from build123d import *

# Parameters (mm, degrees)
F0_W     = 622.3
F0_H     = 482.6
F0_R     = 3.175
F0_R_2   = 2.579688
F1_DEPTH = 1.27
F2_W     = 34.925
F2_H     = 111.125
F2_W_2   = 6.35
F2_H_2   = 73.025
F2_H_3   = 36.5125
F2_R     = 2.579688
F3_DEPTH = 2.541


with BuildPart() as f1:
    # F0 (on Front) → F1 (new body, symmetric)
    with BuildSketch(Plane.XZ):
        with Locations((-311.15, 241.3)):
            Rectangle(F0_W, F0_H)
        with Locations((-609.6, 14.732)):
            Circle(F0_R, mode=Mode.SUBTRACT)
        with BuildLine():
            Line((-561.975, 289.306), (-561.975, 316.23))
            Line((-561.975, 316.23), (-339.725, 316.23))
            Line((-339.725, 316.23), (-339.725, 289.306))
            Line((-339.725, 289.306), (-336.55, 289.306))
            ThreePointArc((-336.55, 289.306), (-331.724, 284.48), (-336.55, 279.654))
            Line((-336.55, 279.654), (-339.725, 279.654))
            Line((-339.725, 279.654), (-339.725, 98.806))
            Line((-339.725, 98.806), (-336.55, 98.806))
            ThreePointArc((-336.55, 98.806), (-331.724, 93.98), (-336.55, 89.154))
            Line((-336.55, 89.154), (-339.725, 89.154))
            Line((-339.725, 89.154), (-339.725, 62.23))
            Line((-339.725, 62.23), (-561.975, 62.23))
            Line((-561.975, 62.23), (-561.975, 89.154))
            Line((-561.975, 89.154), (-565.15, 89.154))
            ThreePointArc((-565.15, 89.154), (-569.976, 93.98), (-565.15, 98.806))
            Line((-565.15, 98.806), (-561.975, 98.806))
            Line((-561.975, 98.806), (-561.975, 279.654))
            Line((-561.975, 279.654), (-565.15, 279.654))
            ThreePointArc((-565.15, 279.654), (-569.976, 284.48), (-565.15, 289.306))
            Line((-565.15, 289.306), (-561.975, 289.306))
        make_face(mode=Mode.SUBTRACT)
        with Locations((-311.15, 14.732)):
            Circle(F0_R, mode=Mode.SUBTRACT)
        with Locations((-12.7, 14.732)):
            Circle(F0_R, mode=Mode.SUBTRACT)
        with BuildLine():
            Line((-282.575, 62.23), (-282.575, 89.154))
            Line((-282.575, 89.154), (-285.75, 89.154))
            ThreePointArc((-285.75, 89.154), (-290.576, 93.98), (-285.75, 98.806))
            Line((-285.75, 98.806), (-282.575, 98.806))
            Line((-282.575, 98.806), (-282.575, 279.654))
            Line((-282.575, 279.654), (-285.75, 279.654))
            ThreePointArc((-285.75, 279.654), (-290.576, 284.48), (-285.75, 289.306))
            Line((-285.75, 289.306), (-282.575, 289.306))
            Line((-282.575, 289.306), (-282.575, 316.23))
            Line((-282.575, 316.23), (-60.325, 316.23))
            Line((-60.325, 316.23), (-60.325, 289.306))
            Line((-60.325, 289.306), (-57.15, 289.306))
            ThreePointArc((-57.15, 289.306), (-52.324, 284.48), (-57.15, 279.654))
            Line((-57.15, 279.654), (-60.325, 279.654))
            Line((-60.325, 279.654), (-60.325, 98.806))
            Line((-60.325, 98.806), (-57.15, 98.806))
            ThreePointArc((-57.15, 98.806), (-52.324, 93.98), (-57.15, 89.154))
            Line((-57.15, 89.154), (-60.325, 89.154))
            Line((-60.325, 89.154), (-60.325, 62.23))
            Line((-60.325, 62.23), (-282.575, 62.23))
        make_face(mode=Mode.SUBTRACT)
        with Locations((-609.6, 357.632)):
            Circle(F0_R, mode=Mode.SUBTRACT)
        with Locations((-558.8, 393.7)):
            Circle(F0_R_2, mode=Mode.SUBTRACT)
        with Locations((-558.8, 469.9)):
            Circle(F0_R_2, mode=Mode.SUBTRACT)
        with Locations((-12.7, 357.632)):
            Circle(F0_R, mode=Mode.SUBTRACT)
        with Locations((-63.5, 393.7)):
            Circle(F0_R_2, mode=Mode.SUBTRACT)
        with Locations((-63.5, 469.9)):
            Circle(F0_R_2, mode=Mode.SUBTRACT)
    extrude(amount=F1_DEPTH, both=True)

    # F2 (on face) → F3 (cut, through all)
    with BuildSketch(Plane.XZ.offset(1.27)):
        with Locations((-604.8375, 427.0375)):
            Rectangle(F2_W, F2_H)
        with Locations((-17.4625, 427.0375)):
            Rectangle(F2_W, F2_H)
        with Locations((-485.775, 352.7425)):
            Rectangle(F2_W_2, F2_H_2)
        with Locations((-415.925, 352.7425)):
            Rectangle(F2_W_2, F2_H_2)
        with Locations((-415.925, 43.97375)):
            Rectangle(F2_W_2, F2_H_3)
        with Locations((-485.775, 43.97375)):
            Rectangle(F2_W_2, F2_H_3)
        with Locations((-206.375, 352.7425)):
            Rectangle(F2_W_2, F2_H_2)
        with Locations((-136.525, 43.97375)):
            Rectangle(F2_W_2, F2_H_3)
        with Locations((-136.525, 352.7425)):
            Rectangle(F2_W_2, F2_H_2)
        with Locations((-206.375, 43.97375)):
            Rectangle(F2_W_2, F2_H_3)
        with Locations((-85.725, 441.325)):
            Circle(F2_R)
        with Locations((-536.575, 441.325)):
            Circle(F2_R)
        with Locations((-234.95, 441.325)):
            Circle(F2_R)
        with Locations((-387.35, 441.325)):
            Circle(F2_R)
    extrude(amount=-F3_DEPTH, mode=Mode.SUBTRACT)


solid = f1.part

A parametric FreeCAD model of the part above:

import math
import FreeCAD as App
import Part
import Sketcher
Q = App.Units.Quantity

doc = App.newDocument("Part")
params = doc.addObject("Spreadsheet::Sheet", "Params")
for row, (alias, value) in enumerate([
    ("sketch1_diameter", "0.25 in"),
    ("sketch1_height", "19 in"),
    ("sketch1_radius", "0.19 in"),
    ("sketch1_diameter2", "0.203125 in"),
    ("sketch1_width", "24.5 in"),
    ("pad1_length", "0.1 in"),
    ("sketch2_diameter", "0.203125 in"),
    ("sketch2_width", "0.25 in"),
    ("sketch2_width2", "1.375 in"),
    ("sketch2_height", "4.375 in"),
    ("sketch2_height2", "2.875 in"),
], start=1):
    params.set(f"A{row}", alias)
    params.set(f"B{row}", "=" + value)
    params.setAlias(f"B{row}", alias)

body = doc.addObject("PartDesign::Body", "Body")

# Sketch on XZ plane
sketch1 = body.newObject("Sketcher::SketchObject", "Sketch")
sketch1.AttachmentSupport = (doc.getObject("XZ_Plane"), [""])
sketch1.MapMode = "FlatFace"
sketch1.addGeometry(Part.LineSegment(App.Vector(-622.3, 482.6, 0), App.Vector(-622.3, 0, 0)), False)
sketch1.addGeometry(Part.LineSegment(App.Vector(-622.3, 0, 0), App.Vector(0, 0, 0)), False)
sketch1.addGeometry(Part.LineSegment(App.Vector(0, 0, 0), App.Vector(0, 482.6, 0)), False)
sketch1.addGeometry(Part.LineSegment(App.Vector(0, 482.6, 0), App.Vector(-622.3, 482.6, 0)), False)
sketch1.addGeometry(Part.Circle(App.Vector(-609.6, 14.732, 0), App.Vector(0, 0, 1), 3.175), False)
sketch1.addGeometry(Part.LineSegment(App.Vector(-565.15, 289.306, 0), App.Vector(-561.975, 289.306, 0)), False)
sketch1.addGeometry(Part.LineSegment(App.Vector(-561.975, 289.306, 0), App.Vector(-561.975, 316.23, 0)), False)
sketch1.addGeometry(Part.LineSegment(App.Vector(-561.975, 316.23, 0), App.Vector(-339.725, 316.23, 0)), False)
sketch1.addGeometry(Part.LineSegment(App.Vector(-339.725, 316.23, 0), App.Vector(-339.725, 289.306, 0)), False)
sketch1.addGeometry(Part.LineSegment(App.Vector(-339.725, 289.306, 0), App.Vector(-336.55, 289.306, 0)), False)
sketch1.addGeometry(Part.ArcOfCircle(Part.Circle(App.Vector(-336.55, 284.48, 0), App.Vector(0, 0, 1), 4.826), math.radians(-90), math.radians(90)), False)
sketch1.addGeometry(Part.LineSegment(App.Vector(-336.55, 279.654, 0), App.Vector(-339.725, 279.654, 0)), False)
sketch1.addGeometry(Part.LineSegment(App.Vector(-339.725, 279.654, 0), App.Vector(-339.725, 98.806, 0)), False)
sketch1.addGeometry(Part.LineSegment(App.Vector(-339.725, 98.806, 0), App.Vector(-336.55, 98.806, 0)), False)
sketch1.addGeometry(Part.ArcOfCircle(Part.Circle(App.Vector(-336.55, 93.98, 0), App.Vector(0, 0, 1), 4.826), math.radians(-90), math.radians(90)), False)
sketch1.addGeometry(Part.LineSegment(App.Vector(-336.55, 89.154, 0), App.Vector(-339.725, 89.154, 0)), False)
sketch1.addGeometry(Part.LineSegment(App.Vector(-339.725, 89.154, 0), App.Vector(-339.725, 62.23, 0)), False)
sketch1.addGeometry(Part.LineSegment(App.Vector(-339.725, 62.23, 0), App.Vector(-561.975, 62.23, 0)), False)
sketch1.addGeometry(Part.LineSegment(App.Vector(-561.975, 62.23, 0), App.Vector(-561.975, 89.154, 0)), False)
sketch1.addGeometry(Part.LineSegment(App.Vector(-561.975, 89.154, 0), App.Vector(-565.15, 89.154, 0)), False)
sketch1.addGeometry(Part.ArcOfCircle(Part.Circle(App.Vector(-565.15, 93.98, 0), App.Vector(0, 0, 1), 4.826), math.radians(90), math.radians(270)), False)
sketch1.addGeometry(Part.LineSegment(App.Vector(-565.15, 98.806, 0), App.Vector(-561.975, 98.806, 0)), False)
sketch1.addGeometry(Part.LineSegment(App.Vector(-561.975, 98.806, 0), App.Vector(-561.975, 279.654, 0)), False)
sketch1.addGeometry(Part.LineSegment(App.Vector(-561.975, 279.654, 0), App.Vector(-565.15, 279.654, 0)), False)
sketch1.addGeometry(Part.ArcOfCircle(Part.Circle(App.Vector(-565.15, 284.48, 0), App.Vector(0, 0, 1), 4.826), math.radians(90), math.radians(270)), False)
sketch1.addGeometry(Part.Circle(App.Vector(-311.15, 14.732, 0), App.Vector(0, 0, 1), 3.175), False)
sketch1.addGeometry(Part.Circle(App.Vector(-12.7, 14.732, 0), App.Vector(0, 0, 1), 3.175), False)
sketch1.addGeometry(Part.LineSegment(App.Vector(-60.325, 62.23, 0), App.Vector(-282.575, 62.23, 0)), False)
sketch1.addGeometry(Part.LineSegment(App.Vector(-282.575, 62.23, 0), App.Vector(-282.575, 89.154, 0)), False)
sketch1.addGeometry(Part.LineSegment(App.Vector(-282.575, 89.154, 0), App.Vector(-285.75, 89.154, 0)), False)
sketch1.addGeometry(Part.ArcOfCircle(Part.Circle(App.Vector(-285.75, 93.98, 0), App.Vector(0, 0, 1), 4.826), math.radians(90), math.radians(270)), False)
sketch1.addGeometry(Part.LineSegment(App.Vector(-285.75, 98.806, 0), App.Vector(-282.575, 98.806, 0)), False)
sketch1.addGeometry(Part.LineSegment(App.Vector(-282.575, 98.806, 0), App.Vector(-282.575, 279.654, 0)), False)
sketch1.addGeometry(Part.LineSegment(App.Vector(-282.575, 279.654, 0), App.Vector(-285.75, 279.654, 0)), False)
sketch1.addGeometry(Part.ArcOfCircle(Part.Circle(App.Vector(-285.75, 284.48, 0), App.Vector(0, 0, 1), 4.826), math.radians(90), math.radians(270)), False)
sketch1.addGeometry(Part.LineSegment(App.Vector(-285.75, 289.306, 0), App.Vector(-282.575, 289.306, 0)), False)
sketch1.addGeometry(Part.LineSegment(App.Vector(-282.575, 289.306, 0), App.Vector(-282.575, 316.23, 0)), False)
sketch1.addGeometry(Part.LineSegment(App.Vector(-282.575, 316.23, 0), App.Vector(-60.325, 316.23, 0)), False)
sketch1.addGeometry(Part.LineSegment(App.Vector(-60.325, 316.23, 0), App.Vector(-60.325, 289.306, 0)), False)
sketch1.addGeometry(Part.LineSegment(App.Vector(-60.325, 289.306, 0), App.Vector(-57.15, 289.306, 0)), False)
sketch1.addGeometry(Part.ArcOfCircle(Part.Circle(App.Vector(-57.15, 284.48, 0), App.Vector(0, 0, 1), 4.826), math.radians(-90), math.radians(90)), False)
sketch1.addGeometry(Part.LineSegment(App.Vector(-57.15, 279.654, 0), App.Vector(-60.325, 279.654, 0)), False)
sketch1.addGeometry(Part.LineSegment(App.Vector(-60.325, 279.654, 0), App.Vector(-60.325, 98.806, 0)), False)
sketch1.addGeometry(Part.LineSegment(App.Vector(-60.325, 98.806, 0), App.Vector(-57.15, 98.806, 0)), False)
sketch1.addGeometry(Part.ArcOfCircle(Part.Circle(App.Vector(-57.15, 93.98, 0), App.Vector(0, 0, 1), 4.826), math.radians(-90), math.radians(90)), False)
sketch1.addGeometry(Part.LineSegment(App.Vector(-57.15, 89.154, 0), App.Vector(-60.325, 89.154, 0)), False)
sketch1.addGeometry(Part.LineSegment(App.Vector(-60.325, 89.154, 0), App.Vector(-60.325, 62.23, 0)), False)
sketch1.addGeometry(Part.Circle(App.Vector(-609.6, 357.632, 0), App.Vector(0, 0, 1), 3.175), False)
sketch1.addGeometry(Part.Circle(App.Vector(-558.8, 393.7, 0), App.Vector(0, 0, 1), 2.579688), False)
sketch1.addGeometry(Part.Circle(App.Vector(-558.8, 469.9, 0), App.Vector(0, 0, 1), 2.579688), False)
sketch1.addGeometry(Part.Circle(App.Vector(-12.7, 357.632, 0), App.Vector(0, 0, 1), 3.175), False)
sketch1.addGeometry(Part.Circle(App.Vector(-63.5, 393.7, 0), App.Vector(0, 0, 1), 2.579688), False)
sketch1.addGeometry(Part.Circle(App.Vector(-63.5, 469.9, 0), App.Vector(0, 0, 1), 2.579688), False)
sketch1.addConstraint(Sketcher.Constraint("Coincident", 0, 2, 1, 1))
sketch1.addConstraint(Sketcher.Constraint("Coincident", 1, 2, 2, 1))
sketch1.addConstraint(Sketcher.Constraint("Coincident", 2, 2, 3, 1))
sketch1.addConstraint(Sketcher.Constraint("Coincident", 3, 2, 0, 1))
sketch1.addConstraint(Sketcher.Constraint("Coincident", 5, 2, 6, 1))
sketch1.addConstraint(Sketcher.Constraint("Coincident", 6, 2, 7, 1))
sketch1.addConstraint(Sketcher.Constraint("Coincident", 7, 2, 8, 1))
sketch1.addConstraint(Sketcher.Constraint("Coincident", 8, 2, 9, 1))
sketch1.addConstraint(Sketcher.Constraint("Tangent", 9, 2, 10, 2))
sketch1.addConstraint(Sketcher.Constraint("Tangent", 10, 1, 11, 1))
sketch1.addConstraint(Sketcher.Constraint("Coincident", 11, 2, 12, 1))
sketch1.addConstraint(Sketcher.Constraint("Coincident", 12, 2, 13, 1))
sketch1.addConstraint(Sketcher.Constraint("Tangent", 13, 2, 14, 2))
sketch1.addConstraint(Sketcher.Constraint("Tangent", 14, 1, 15, 1))
sketch1.addConstraint(Sketcher.Constraint("Coincident", 15, 2, 16, 1))
sketch1.addConstraint(Sketcher.Constraint("Coincident", 16, 2, 17, 1))
sketch1.addConstraint(Sketcher.Constraint("Coincident", 17, 2, 18, 1))
sketch1.addConstraint(Sketcher.Constraint("Coincident", 18, 2, 19, 1))
sketch1.addConstraint(Sketcher.Constraint("Tangent", 19, 2, 20, 2))
sketch1.addConstraint(Sketcher.Constraint("Tangent", 20, 1, 21, 1))
sketch1.addConstraint(Sketcher.Constraint("Coincident", 21, 2, 22, 1))
sketch1.addConstraint(Sketcher.Constraint("Coincident", 22, 2, 23, 1))
sketch1.addConstraint(Sketcher.Constraint("Tangent", 23, 2, 24, 2))
sketch1.addConstraint(Sketcher.Constraint("Tangent", 24, 1, 5, 1))
sketch1.addConstraint(Sketcher.Constraint("Coincident", 27, 2, 28, 1))
sketch1.addConstraint(Sketcher.Constraint("Coincident", 28, 2, 29, 1))
sketch1.addConstraint(Sketcher.Constraint("Tangent", 29, 2, 30, 2))
sketch1.addConstraint(Sketcher.Constraint("Tangent", 30, 1, 31, 1))
sketch1.addConstraint(Sketcher.Constraint("Coincident", 31, 2, 32, 1))
sketch1.addConstraint(Sketcher.Constraint("Coincident", 32, 2, 33, 1))
sketch1.addConstraint(Sketcher.Constraint("Tangent", 33, 2, 34, 2))
sketch1.addConstraint(Sketcher.Constraint("Tangent", 34, 1, 35, 1))
sketch1.addConstraint(Sketcher.Constraint("Coincident", 35, 2, 36, 1))
sketch1.addConstraint(Sketcher.Constraint("Coincident", 36, 2, 37, 1))
sketch1.addConstraint(Sketcher.Constraint("Coincident", 37, 2, 38, 1))
sketch1.addConstraint(Sketcher.Constraint("Coincident", 38, 2, 39, 1))
sketch1.addConstraint(Sketcher.Constraint("Tangent", 39, 2, 40, 2))
sketch1.addConstraint(Sketcher.Constraint("Tangent", 40, 1, 41, 1))
sketch1.addConstraint(Sketcher.Constraint("Coincident", 41, 2, 42, 1))
sketch1.addConstraint(Sketcher.Constraint("Coincident", 42, 2, 43, 1))
sketch1.addConstraint(Sketcher.Constraint("Tangent", 43, 2, 44, 2))
sketch1.addConstraint(Sketcher.Constraint("Tangent", 44, 1, 45, 1))
sketch1.addConstraint(Sketcher.Constraint("Coincident", 45, 2, 46, 1))
sketch1.addConstraint(Sketcher.Constraint("Coincident", 46, 2, 27, 1))
sketch1.addConstraint(Sketcher.Constraint("Vertical", 0))
sketch1.addConstraint(Sketcher.Constraint("Horizontal", 1))
sketch1.addConstraint(Sketcher.Constraint("Vertical", 2))
sketch1.addConstraint(Sketcher.Constraint("Horizontal", 3))
sketch1.addConstraint(Sketcher.Constraint("Horizontal", 5))
sketch1.addConstraint(Sketcher.Constraint("Vertical", 6))
sketch1.addConstraint(Sketcher.Constraint("Horizontal", 7))
sketch1.addConstraint(Sketcher.Constraint("Vertical", 8))
sketch1.addConstraint(Sketcher.Constraint("Horizontal", 9))
sketch1.addConstraint(Sketcher.Constraint("Horizontal", 11))
sketch1.addConstraint(Sketcher.Constraint("Vertical", 12))
sketch1.addConstraint(Sketcher.Constraint("Horizontal", 13))
sketch1.addConstraint(Sketcher.Constraint("Horizontal", 15))
sketch1.addConstraint(Sketcher.Constraint("Vertical", 16))
sketch1.addConstraint(Sketcher.Constraint("Horizontal", 17))
sketch1.addConstraint(Sketcher.Constraint("Vertical", 18))
sketch1.addConstraint(Sketcher.Constraint("Horizontal", 19))
sketch1.addConstraint(Sketcher.Constraint("Horizontal", 21))
sketch1.addConstraint(Sketcher.Constraint("Vertical", 22))
sketch1.addConstraint(Sketcher.Constraint("Horizontal", 23))
sketch1.addConstraint(Sketcher.Constraint("Horizontal", 27))
sketch1.addConstraint(Sketcher.Constraint("Vertical", 28))
sketch1.addConstraint(Sketcher.Constraint("Horizontal", 29))
sketch1.addConstraint(Sketcher.Constraint("Horizontal", 31))
sketch1.addConstraint(Sketcher.Constraint("Vertical", 32))
sketch1.addConstraint(Sketcher.Constraint("Horizontal", 33))
sketch1.addConstraint(Sketcher.Constraint("Horizontal", 35))
sketch1.addConstraint(Sketcher.Constraint("Vertical", 36))
sketch1.addConstraint(Sketcher.Constraint("Horizontal", 37))
sketch1.addConstraint(Sketcher.Constraint("Vertical", 38))
sketch1.addConstraint(Sketcher.Constraint("Horizontal", 39))
sketch1.addConstraint(Sketcher.Constraint("Horizontal", 41))
sketch1.addConstraint(Sketcher.Constraint("Vertical", 42))
sketch1.addConstraint(Sketcher.Constraint("Horizontal", 43))
sketch1.addConstraint(Sketcher.Constraint("Horizontal", 45))
sketch1.addConstraint(Sketcher.Constraint("Vertical", 46))
sketch1.addConstraint(Sketcher.Constraint("Coincident", 1, 2, -1, 1))
sketch1.addConstraint(Sketcher.Constraint("Equal", 10, 14))
sketch1.addConstraint(Sketcher.Constraint("Equal", 14, 20))
sketch1.addConstraint(Sketcher.Constraint("Equal", 20, 24))
sketch1.addConstraint(Sketcher.Constraint("Equal", 4, 25))
sketch1.addConstraint(Sketcher.Constraint("Equal", 25, 26))
sketch1.addConstraint(Sketcher.Constraint("Equal", 24, 30))
sketch1.addConstraint(Sketcher.Constraint("Equal", 30, 34))
sketch1.addConstraint(Sketcher.Constraint("Equal", 34, 40))
sketch1.addConstraint(Sketcher.Constraint("Equal", 40, 44))
sketch1.addConstraint(Sketcher.Constraint("Equal", 26, 47))
sketch1.addConstraint(Sketcher.Constraint("Equal", 48, 49))
sketch1.addConstraint(Sketcher.Constraint("Equal", 47, 50))
sketch1.addConstraint(Sketcher.Constraint("Equal", 49, 51))
sketch1.addConstraint(Sketcher.Constraint("Equal", 51, 52))
sketch1.addConstraint(Sketcher.Constraint("Horizontal", 14, 3, 20, 3))
sketch1.addConstraint(Sketcher.Constraint("Horizontal", 10, 3, 24, 3))
sketch1.addConstraint(Sketcher.Constraint("Horizontal", 4, 3, 25, 3))
sketch1.addConstraint(Sketcher.Constraint("Horizontal", 25, 3, 26, 3))
sketch1.addConstraint(Sketcher.Constraint("Horizontal", 20, 3, 30, 3))
sketch1.addConstraint(Sketcher.Constraint("Horizontal", 24, 3, 34, 3))
sketch1.addConstraint(Sketcher.Constraint("Horizontal", 34, 3, 40, 3))
sketch1.addConstraint(Sketcher.Constraint("Horizontal", 30, 3, 44, 3))
sketch1.addConstraint(Sketcher.Constraint("Horizontal", 47, 3, 50, 3))
sketch1.addConstraint(Sketcher.Constraint("Horizontal", 48, 3, 51, 3))
sketch1.addConstraint(Sketcher.Constraint("Horizontal", 49, 3, 52, 3))
sketch1.addConstraint(Sketcher.Constraint("Horizontal", 17, 2, 27, 2))
sketch1.addConstraint(Sketcher.Constraint("Horizontal", 7, 2, 36, 2))
sketch1.addConstraint(Sketcher.Constraint("Vertical", 10, 3, 14, 3))
sketch1.addConstraint(Sketcher.Constraint("Vertical", 20, 3, 24, 3))
sketch1.addConstraint(Sketcher.Constraint("Vertical", 30, 3, 34, 3))
sketch1.addConstraint(Sketcher.Constraint("Vertical", 40, 3, 44, 3))
sketch1.addConstraint(Sketcher.Constraint("Vertical", 4, 3, 47, 3))
sketch1.addConstraint(Sketcher.Constraint("Vertical", 48, 3, 49, 3))
sketch1.addConstraint(Sketcher.Constraint("Vertical", 26, 3, 50, 3))
sketch1.addConstraint(Sketcher.Constraint("Vertical", 51, 3, 52, 3))
sketch1.addConstraint(Sketcher.Constraint("Vertical", 8, 2, 11, 2))
sketch1.addConstraint(Sketcher.Constraint("Vertical", 12, 2, 15, 2))
sketch1.addConstraint(Sketcher.Constraint("Vertical", 6, 2, 17, 2))
sketch1.addConstraint(Sketcher.Constraint("Vertical", 18, 2, 21, 2))
sketch1.addConstraint(Sketcher.Constraint("Vertical", 28, 2, 31, 2))
sketch1.addConstraint(Sketcher.Constraint("Vertical", 32, 2, 35, 2))
sketch1.addConstraint(Sketcher.Constraint("Vertical", 38, 2, 41, 2))
sketch1.addConstraint(Sketcher.Constraint("Vertical", 42, 2, 45, 2))
sketch1.addConstraint(Sketcher.Constraint("Equal", 5, 9))
sketch1.addConstraint(Sketcher.Constraint("Equal", 17, 27))
sketch1.addConstraint(Sketcher.Constraint("Equal", 23, 29))
sketch1.addConstraint(Sketcher.Constraint("Equal", 35, 39))
sketch1.addConstraint(Sketcher.Constraint("Equal", 8, 16))
sketch1.addConstraint(Sketcher.Constraint("Diameter", 4, Q("0.25 in")))
sketch1.addConstraint(Sketcher.Constraint("DistanceY", 0, 2, 0, 1, Q("19 in")))
sketch1.addConstraint(Sketcher.Constraint("Radius", 10, Q("0.19 in")))
sketch1.addConstraint(Sketcher.Constraint("Diameter", 48, Q("0.203125 in")))
sketch1.addConstraint(Sketcher.Constraint("DistanceX", 1, 1, 1, 2, Q("24.5 in")))
sketch1.addConstraint(Sketcher.Constraint("DistanceX", 4, 3, -1, 1, Q("24 in")))
sketch1.addConstraint(Sketcher.Constraint("DistanceX", 48, 3, -1, 1, Q("22 in")))
sketch1.addConstraint(Sketcher.Constraint("DistanceX", 7, 1, 7, 2, Q("8.75 in")))
sketch1.addConstraint(Sketcher.Constraint("DistanceY", 6, 1, 6, 2, Q("1.06 in")))
sketch1.addConstraint(Sketcher.Constraint("DistanceY", 12, 2, 12, 1, Q("7.12 in")))
sketch1.addConstraint(Sketcher.Constraint("DistanceY", -1, 1, 10, 3, Q("11.2 in")))
sketch1.addConstraint(Sketcher.Constraint("DistanceX", 26, 3, -1, 1, Q("0.5 in")))
sketch1.addConstraint(Sketcher.Constraint("DistanceY", -1, 1, 48, 3, Q("15.5 in")))
sketch1.addConstraint(Sketcher.Constraint("DistanceY", -1, 1, 49, 3, Q("18.5 in")))
sketch1.addConstraint(Sketcher.Constraint("DistanceX", 51, 3, -1, 1, Q("2.5 in")))
sketch1.addConstraint(Sketcher.Constraint("DistanceX", 5, 1, 5, 2, Q("0.125 in")))
sketch1.addConstraint(Sketcher.Constraint("DistanceY", -1, 1, 4, 3, Q("0.58 in")))
sketch1.addConstraint(Sketcher.Constraint("DistanceX", 10, 3, -1, 1, Q("13.25 in")))
sketch1.addConstraint(Sketcher.Constraint("DistanceX", 25, 3, -1, 1, Q("12.25 in")))
sketch1.addConstraint(Sketcher.Constraint("DistanceX", 30, 3, -1, 1, Q("11.25 in")))
sketch1.addConstraint(Sketcher.Constraint("DistanceY", -1, 1, 47, 3, Q("14.08 in")))
sketch1.setExpression("Constraints[129]", "Params.sketch1_diameter")
sketch1.setExpression("Constraints[130]", "Params.sketch1_height")
sketch1.setExpression("Constraints[131]", "Params.sketch1_radius")
sketch1.setExpression("Constraints[132]", "Params.sketch1_diameter2")
sketch1.setExpression("Constraints[133]", "Params.sketch1_width")
pad1 = body.newObject("PartDesign::Pad", "Pad")
pad1.Profile = sketch1
pad1.setExpression("Length", "Params.pad1_length")
pad1.Midplane = True

# Sketch on XZ plane
sketch2 = body.newObject("Sketcher::SketchObject", "Sketch001")
sketch2.AttachmentSupport = (doc.getObject("XZ_Plane"), [""])
sketch2.MapMode = "FlatFace"
sketch2.AttachmentOffset = App.Placement(App.Vector(0, 0, 0.05 * 25.4), App.Rotation())
sketch2.addGeometry(Part.LineSegment(App.Vector(-622.3, 482.6, 0), App.Vector(-622.3, 371.475, 0)), False)
sketch2.addGeometry(Part.LineSegment(App.Vector(-622.3, 371.475, 0), App.Vector(-587.375, 371.475, 0)), False)
sketch2.addGeometry(Part.LineSegment(App.Vector(-587.375, 371.475, 0), App.Vector(-587.375, 482.6, 0)), False)
sketch2.addGeometry(Part.LineSegment(App.Vector(-587.375, 482.6, 0), App.Vector(-622.3, 482.6, 0)), False)
sketch2.addGeometry(Part.LineSegment(App.Vector(-34.925, 482.6, 0), App.Vector(-34.925, 371.475, 0)), False)
sketch2.addGeometry(Part.LineSegment(App.Vector(-34.925, 371.475, 0), App.Vector(0, 371.475, 0)), False)
sketch2.addGeometry(Part.LineSegment(App.Vector(0, 371.475, 0), App.Vector(0, 482.6, 0)), False)
sketch2.addGeometry(Part.LineSegment(App.Vector(0, 482.6, 0), App.Vector(-34.925, 482.6, 0)), False)
sketch2.addGeometry(Part.LineSegment(App.Vector(-488.95, 389.255, 0), App.Vector(-488.95, 316.23, 0)), False)
sketch2.addGeometry(Part.LineSegment(App.Vector(-488.95, 316.23, 0), App.Vector(-482.6, 316.23, 0)), False)
sketch2.addGeometry(Part.LineSegment(App.Vector(-482.6, 316.23, 0), App.Vector(-482.6, 389.255, 0)), False)
sketch2.addGeometry(Part.LineSegment(App.Vector(-482.6, 389.255, 0), App.Vector(-488.95, 389.255, 0)), False)
sketch2.addGeometry(Part.LineSegment(App.Vector(-419.1, 389.255, 0), App.Vector(-419.1, 316.23, 0)), False)
sketch2.addGeometry(Part.LineSegment(App.Vector(-419.1, 316.23, 0), App.Vector(-412.75, 316.23, 0)), False)
sketch2.addGeometry(Part.LineSegment(App.Vector(-412.75, 316.23, 0), App.Vector(-412.75, 389.255, 0)), False)
sketch2.addGeometry(Part.LineSegment(App.Vector(-412.75, 389.255, 0), App.Vector(-419.1, 389.255, 0)), False)
sketch2.addGeometry(Part.LineSegment(App.Vector(-419.1, 62.23, 0), App.Vector(-419.1, 25.7175, 0)), False)
sketch2.addGeometry(Part.LineSegment(App.Vector(-419.1, 25.7175, 0), App.Vector(-412.75, 25.7175, 0)), False)
sketch2.addGeometry(Part.LineSegment(App.Vector(-412.75, 25.7175, 0), App.Vector(-412.75, 62.23, 0)), False)
sketch2.addGeometry(Part.LineSegment(App.Vector(-412.75, 62.23, 0), App.Vector(-419.1, 62.23, 0)), False)
sketch2.addGeometry(Part.LineSegment(App.Vector(-488.95, 62.23, 0), App.Vector(-488.95, 25.7175, 0)), False)
sketch2.addGeometry(Part.LineSegment(App.Vector(-488.95, 25.7175, 0), App.Vector(-482.6, 25.7175, 0)), False)
sketch2.addGeometry(Part.LineSegment(App.Vector(-482.6, 25.7175, 0), App.Vector(-482.6, 62.23, 0)), False)
sketch2.addGeometry(Part.LineSegment(App.Vector(-482.6, 62.23, 0), App.Vector(-488.95, 62.23, 0)), False)
sketch2.addGeometry(Part.LineSegment(App.Vector(-209.55, 389.255, 0), App.Vector(-209.55, 316.23, 0)), False)
sketch2.addGeometry(Part.LineSegment(App.Vector(-209.55, 316.23, 0), App.Vector(-203.2, 316.23, 0)), False)
sketch2.addGeometry(Part.LineSegment(App.Vector(-203.2, 316.23, 0), App.Vector(-203.2, 389.255, 0)), False)
sketch2.addGeometry(Part.LineSegment(App.Vector(-203.2, 389.255, 0), App.Vector(-209.55, 389.255, 0)), False)
sketch2.addGeometry(Part.LineSegment(App.Vector(-139.7, 62.23, 0), App.Vector(-139.7, 25.7175, 0)), False)
sketch2.addGeometry(Part.LineSegment(App.Vector(-139.7, 25.7175, 0), App.Vector(-133.35, 25.7175, 0)), False)
sketch2.addGeometry(Part.LineSegment(App.Vector(-133.35, 25.7175, 0), App.Vector(-133.35, 62.23, 0)), False)
sketch2.addGeometry(Part.LineSegment(App.Vector(-133.35, 62.23, 0), App.Vector(-139.7, 62.23, 0)), False)
sketch2.addGeometry(Part.LineSegment(App.Vector(-139.7, 389.255, 0), App.Vector(-139.7, 316.23, 0)), False)
sketch2.addGeometry(Part.LineSegment(App.Vector(-139.7, 316.23, 0), App.Vector(-133.35, 316.23, 0)), False)
sketch2.addGeometry(Part.LineSegment(App.Vector(-133.35, 316.23, 0), App.Vector(-133.35, 389.255, 0)), False)
sketch2.addGeometry(Part.LineSegment(App.Vector(-133.35, 389.255, 0), App.Vector(-139.7, 389.255, 0)), False)
sketch2.addGeometry(Part.LineSegment(App.Vector(-209.55, 62.23, 0), App.Vector(-209.55, 25.7175, 0)), False)
sketch2.addGeometry(Part.LineSegment(App.Vector(-209.55, 25.7175, 0), App.Vector(-203.2, 25.7175, 0)), False)
sketch2.addGeometry(Part.LineSegment(App.Vector(-203.2, 25.7175, 0), App.Vector(-203.2, 62.23, 0)), False)
sketch2.addGeometry(Part.LineSegment(App.Vector(-203.2, 62.23, 0), App.Vector(-209.55, 62.23, 0)), False)
sketch2.addGeometry(Part.Circle(App.Vector(-85.725, 441.325, 0), App.Vector(0, 0, 1), 2.579688), False)
sketch2.addGeometry(Part.Circle(App.Vector(-536.575, 441.325, 0), App.Vector(0, 0, 1), 2.579688), False)
sketch2.addGeometry(Part.Circle(App.Vector(-234.95, 441.325, 0), App.Vector(0, 0, 1), 2.579688), False)
sketch2.addGeometry(Part.Circle(App.Vector(-387.35, 441.325, 0), App.Vector(0, 0, 1), 2.579688), False)
sketch2.addConstraint(Sketcher.Constraint("Coincident", 0, 2, 1, 1))
sketch2.addConstraint(Sketcher.Constraint("Coincident", 1, 2, 2, 1))
sketch2.addConstraint(Sketcher.Constraint("Coincident", 2, 2, 3, 1))
sketch2.addConstraint(Sketcher.Constraint("Coincident", 3, 2, 0, 1))
sketch2.addConstraint(Sketcher.Constraint("Coincident", 4, 2, 5, 1))
sketch2.addConstraint(Sketcher.Constraint("Coincident", 5, 2, 6, 1))
sketch2.addConstraint(Sketcher.Constraint("Coincident", 6, 2, 7, 1))
sketch2.addConstraint(Sketcher.Constraint("Coincident", 7, 2, 4, 1))
sketch2.addConstraint(Sketcher.Constraint("Coincident", 8, 2, 9, 1))
sketch2.addConstraint(Sketcher.Constraint("Coincident", 9, 2, 10, 1))
sketch2.addConstraint(Sketcher.Constraint("Coincident", 10, 2, 11, 1))
sketch2.addConstraint(Sketcher.Constraint("Coincident", 11, 2, 8, 1))
sketch2.addConstraint(Sketcher.Constraint("Coincident", 12, 2, 13, 1))
sketch2.addConstraint(Sketcher.Constraint("Coincident", 13, 2, 14, 1))
sketch2.addConstraint(Sketcher.Constraint("Coincident", 14, 2, 15, 1))
sketch2.addConstraint(Sketcher.Constraint("Coincident", 15, 2, 12, 1))
sketch2.addConstraint(Sketcher.Constraint("Coincident", 16, 2, 17, 1))
sketch2.addConstraint(Sketcher.Constraint("Coincident", 17, 2, 18, 1))
sketch2.addConstraint(Sketcher.Constraint("Coincident", 18, 2, 19, 1))
sketch2.addConstraint(Sketcher.Constraint("Coincident", 19, 2, 16, 1))
sketch2.addConstraint(Sketcher.Constraint("Coincident", 20, 2, 21, 1))
sketch2.addConstraint(Sketcher.Constraint("Coincident", 21, 2, 22, 1))
sketch2.addConstraint(Sketcher.Constraint("Coincident", 22, 2, 23, 1))
sketch2.addConstraint(Sketcher.Constraint("Coincident", 23, 2, 20, 1))
sketch2.addConstraint(Sketcher.Constraint("Coincident", 24, 2, 25, 1))
sketch2.addConstraint(Sketcher.Constraint("Coincident", 25, 2, 26, 1))
sketch2.addConstraint(Sketcher.Constraint("Coincident", 26, 2, 27, 1))
sketch2.addConstraint(Sketcher.Constraint("Coincident", 27, 2, 24, 1))
sketch2.addConstraint(Sketcher.Constraint("Coincident", 28, 2, 29, 1))
sketch2.addConstraint(Sketcher.Constraint("Coincident", 29, 2, 30, 1))
sketch2.addConstraint(Sketcher.Constraint("Coincident", 30, 2, 31, 1))
sketch2.addConstraint(Sketcher.Constraint("Coincident", 31, 2, 28, 1))
sketch2.addConstraint(Sketcher.Constraint("Coincident", 32, 2, 33, 1))
sketch2.addConstraint(Sketcher.Constraint("Coincident", 33, 2, 34, 1))
sketch2.addConstraint(Sketcher.Constraint("Coincident", 34, 2, 35, 1))
sketch2.addConstraint(Sketcher.Constraint("Coincident", 35, 2, 32, 1))
sketch2.addConstraint(Sketcher.Constraint("Coincident", 36, 2, 37, 1))
sketch2.addConstraint(Sketcher.Constraint("Coincident", 37, 2, 38, 1))
sketch2.addConstraint(Sketcher.Constraint("Coincident", 38, 2, 39, 1))
sketch2.addConstraint(Sketcher.Constraint("Coincident", 39, 2, 36, 1))
sketch2.addConstraint(Sketcher.Constraint("Vertical", 0))
sketch2.addConstraint(Sketcher.Constraint("Horizontal", 1))
sketch2.addConstraint(Sketcher.Constraint("Vertical", 2))
sketch2.addConstraint(Sketcher.Constraint("Horizontal", 3))
sketch2.addConstraint(Sketcher.Constraint("Vertical", 4))
sketch2.addConstraint(Sketcher.Constraint("Horizontal", 5))
sketch2.addConstraint(Sketcher.Constraint("Vertical", 6))
sketch2.addConstraint(Sketcher.Constraint("Horizontal", 7))
sketch2.addConstraint(Sketcher.Constraint("Vertical", 8))
sketch2.addConstraint(Sketcher.Constraint("Horizontal", 9))
sketch2.addConstraint(Sketcher.Constraint("Vertical", 10))
sketch2.addConstraint(Sketcher.Constraint("Horizontal", 11))
sketch2.addConstraint(Sketcher.Constraint("Vertical", 12))
sketch2.addConstraint(Sketcher.Constraint("Horizontal", 13))
sketch2.addConstraint(Sketcher.Constraint("Vertical", 14))
sketch2.addConstraint(Sketcher.Constraint("Horizontal", 15))
sketch2.addConstraint(Sketcher.Constraint("Vertical", 16))
sketch2.addConstraint(Sketcher.Constraint("Horizontal", 17))
sketch2.addConstraint(Sketcher.Constraint("Vertical", 18))
sketch2.addConstraint(Sketcher.Constraint("Horizontal", 19))
sketch2.addConstraint(Sketcher.Constraint("Vertical", 20))
sketch2.addConstraint(Sketcher.Constraint("Horizontal", 21))
sketch2.addConstraint(Sketcher.Constraint("Vertical", 22))
sketch2.addConstraint(Sketcher.Constraint("Horizontal", 23))
sketch2.addConstraint(Sketcher.Constraint("Vertical", 24))
sketch2.addConstraint(Sketcher.Constraint("Horizontal", 25))
sketch2.addConstraint(Sketcher.Constraint("Vertical", 26))
sketch2.addConstraint(Sketcher.Constraint("Horizontal", 27))
sketch2.addConstraint(Sketcher.Constraint("Vertical", 28))
sketch2.addConstraint(Sketcher.Constraint("Horizontal", 29))
sketch2.addConstraint(Sketcher.Constraint("Vertical", 30))
sketch2.addConstraint(Sketcher.Constraint("Horizontal", 31))
sketch2.addConstraint(Sketcher.Constraint("Vertical", 32))
sketch2.addConstraint(Sketcher.Constraint("Horizontal", 33))
sketch2.addConstraint(Sketcher.Constraint("Vertical", 34))
sketch2.addConstraint(Sketcher.Constraint("Horizontal", 35))
sketch2.addConstraint(Sketcher.Constraint("Vertical", 36))
sketch2.addConstraint(Sketcher.Constraint("Horizontal", 37))
sketch2.addConstraint(Sketcher.Constraint("Vertical", 38))
sketch2.addConstraint(Sketcher.Constraint("Horizontal", 39))
sketch2.addConstraint(Sketcher.Constraint("Equal", 40, 41))
sketch2.addConstraint(Sketcher.Constraint("Equal", 41, 42))
sketch2.addConstraint(Sketcher.Constraint("Equal", 42, 43))
sketch2.addConstraint(Sketcher.Constraint("PointOnObject", 5, 2, -2))
sketch2.addConstraint(Sketcher.Constraint("Horizontal", 40, 3, 41, 3))
sketch2.addConstraint(Sketcher.Constraint("Horizontal", 41, 3, 42, 3))
sketch2.addConstraint(Sketcher.Constraint("Horizontal", 42, 3, 43, 3))
sketch2.addConstraint(Sketcher.Constraint("Horizontal", 1, 2, 4, 2))
sketch2.addConstraint(Sketcher.Constraint("Horizontal", 3, 2, 6, 2))
sketch2.addConstraint(Sketcher.Constraint("Horizontal", 9, 2, 12, 2))
sketch2.addConstraint(Sketcher.Constraint("Horizontal", 11, 2, 14, 2))
sketch2.addConstraint(Sketcher.Constraint("Horizontal", 17, 2, 20, 2))
sketch2.addConstraint(Sketcher.Constraint("Horizontal", 19, 2, 22, 2))
sketch2.addConstraint(Sketcher.Constraint("Horizontal", 13, 2, 24, 2))
sketch2.addConstraint(Sketcher.Constraint("Horizontal", 15, 2, 26, 2))
sketch2.addConstraint(Sketcher.Constraint("Horizontal", 21, 2, 28, 2))
sketch2.addConstraint(Sketcher.Constraint("Horizontal", 23, 2, 30, 2))
sketch2.addConstraint(Sketcher.Constraint("Horizontal", 25, 2, 32, 2))
sketch2.addConstraint(Sketcher.Constraint("Horizontal", 27, 2, 34, 2))
sketch2.addConstraint(Sketcher.Constraint("Horizontal", 29, 2, 36, 2))
sketch2.addConstraint(Sketcher.Constraint("Horizontal", 31, 2, 38, 2))
sketch2.addConstraint(Sketcher.Constraint("Vertical", 15, 2, 16, 2))
sketch2.addConstraint(Sketcher.Constraint("Vertical", 14, 2, 17, 2))
sketch2.addConstraint(Sketcher.Constraint("Vertical", 11, 2, 20, 2))
sketch2.addConstraint(Sketcher.Constraint("Vertical", 10, 2, 21, 2))
sketch2.addConstraint(Sketcher.Constraint("Vertical", 31, 2, 32, 2))
sketch2.addConstraint(Sketcher.Constraint("Vertical", 30, 2, 33, 2))
sketch2.addConstraint(Sketcher.Constraint("Vertical", 27, 2, 36, 2))
sketch2.addConstraint(Sketcher.Constraint("Vertical", 26, 2, 37, 2))
sketch2.addConstraint(Sketcher.Constraint("Equal", 3, 5))
sketch2.addConstraint(Sketcher.Constraint("Equal", 11, 13))
sketch2.addConstraint(Sketcher.Constraint("Equal", 23, 25))
sketch2.addConstraint(Sketcher.Constraint("Equal", 27, 29))
sketch2.addConstraint(Sketcher.Constraint("Diameter", 40, Q("0.203125 in")))
sketch2.addConstraint(Sketcher.Constraint("DistanceY", -1, 1, 2, 2, Q("19 in")))
sketch2.addConstraint(Sketcher.Constraint("DistanceX", 9, 2, -1, 1, Q("19 in")))
sketch2.addConstraint(Sketcher.Constraint("DistanceX", 25, 2, -1, 1, Q("8 in")))
sketch2.addConstraint(Sketcher.Constraint("DistanceX", 43, 3, 42, 3, Q("6 in")))
sketch2.addConstraint(Sketcher.Constraint("DistanceX", 1, 2, 41, 3, Q("2 in")))
sketch2.addConstraint(Sketcher.Constraint("DistanceX", 40, 3, 4, 2, Q("2 in")))
sketch2.addConstraint(Sketcher.Constraint("DistanceX", 8, 2, 43, 3, Q("4 in")))
sketch2.addConstraint(Sketcher.Constraint("DistanceX", 8, 2, 13, 2, Q("3 in")))
sketch2.addConstraint(Sketcher.Constraint("DistanceY", 18, 2, 13, 2, Q("10 in")))
sketch2.addConstraint(Sketcher.Constraint("DistanceX", 16, 2, 28, 2, Q("11 in")))
sketch2.addConstraint(Sketcher.Constraint("DistanceX", 9, 1, 9, 2, Q("0.25 in")))
sketch2.addConstraint(Sketcher.Constraint("DistanceX", 0, 2, -1, 1, Q("24.5 in")))
sketch2.addConstraint(Sketcher.Constraint("DistanceY", 1, 2, 10, 2, Q("0.7 in")))
sketch2.addConstraint(Sketcher.Constraint("DistanceX", 1, 1, 1, 2, Q("1.375 in")))
sketch2.addConstraint(Sketcher.Constraint("DistanceY", 0, 2, 0, 1, Q("4.375 in")))
sketch2.addConstraint(Sketcher.Constraint("DistanceY", 8, 2, 8, 1, Q("2.875 in")))
sketch2.addConstraint(Sketcher.Constraint("DistanceY", 16, 2, 16, 1, Q("1.4375 in")))
sketch2.addConstraint(Sketcher.Constraint("DistanceY", 0, 2, 41, 3, Q("2.75 in")))
sketch2.setExpression("Constraints[113]", "Params.sketch2_diameter")
sketch2.setExpression("Constraints[124]", "Params.sketch2_width")
sketch2.setExpression("Constraints[127]", "Params.sketch2_width2")
sketch2.setExpression("Constraints[128]", "Params.sketch2_height")
sketch2.setExpression("Constraints[129]", "Params.sketch2_height2")
pocket1 = body.newObject("PartDesign::Pocket", "Pocket")
pocket1.Profile = sketch2
pocket1.Type = "ThroughAll"

doc.recompute()
